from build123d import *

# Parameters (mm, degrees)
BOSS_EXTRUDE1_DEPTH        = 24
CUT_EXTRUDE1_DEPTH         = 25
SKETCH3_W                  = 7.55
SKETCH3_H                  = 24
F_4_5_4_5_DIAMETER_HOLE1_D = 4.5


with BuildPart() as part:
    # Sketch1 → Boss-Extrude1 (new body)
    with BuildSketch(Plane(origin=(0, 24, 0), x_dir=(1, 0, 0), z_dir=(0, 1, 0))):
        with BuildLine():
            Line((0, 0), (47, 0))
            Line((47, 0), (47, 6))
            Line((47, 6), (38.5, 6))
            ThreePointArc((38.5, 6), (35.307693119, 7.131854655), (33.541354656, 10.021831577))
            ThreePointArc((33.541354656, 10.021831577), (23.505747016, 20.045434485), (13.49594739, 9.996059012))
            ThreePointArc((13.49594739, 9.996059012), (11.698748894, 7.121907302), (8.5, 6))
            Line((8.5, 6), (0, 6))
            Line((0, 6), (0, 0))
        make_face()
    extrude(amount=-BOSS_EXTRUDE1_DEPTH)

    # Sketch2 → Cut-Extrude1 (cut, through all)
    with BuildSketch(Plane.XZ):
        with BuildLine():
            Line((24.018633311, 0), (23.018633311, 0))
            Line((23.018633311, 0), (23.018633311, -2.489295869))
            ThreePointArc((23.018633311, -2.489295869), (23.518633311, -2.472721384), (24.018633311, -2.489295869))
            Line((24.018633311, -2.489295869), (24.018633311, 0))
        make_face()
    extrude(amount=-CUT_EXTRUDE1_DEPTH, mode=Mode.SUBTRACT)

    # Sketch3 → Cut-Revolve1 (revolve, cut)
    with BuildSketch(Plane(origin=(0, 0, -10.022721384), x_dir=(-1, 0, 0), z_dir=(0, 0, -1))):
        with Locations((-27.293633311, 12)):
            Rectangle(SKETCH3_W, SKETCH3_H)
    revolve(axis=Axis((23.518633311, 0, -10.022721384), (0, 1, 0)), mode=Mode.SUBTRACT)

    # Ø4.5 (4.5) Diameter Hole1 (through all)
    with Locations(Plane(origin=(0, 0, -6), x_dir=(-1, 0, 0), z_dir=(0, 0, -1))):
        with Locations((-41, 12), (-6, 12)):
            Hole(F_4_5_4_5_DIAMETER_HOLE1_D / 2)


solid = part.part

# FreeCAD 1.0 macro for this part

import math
import FreeCAD as App
import Part
import Sketcher

V = App.Vector


def add_polygon(sketch, points):
    """Adds a closed chain of lines whose ends are joined by coincident constraints."""
    first, n = sketch.GeometryCount, len(points)
    for a, b in zip(points, points[1:] + points[:1]):
        sketch.addGeometry(Part.LineSegment(App.Vector(*a, 0), App.Vector(*b, 0)), False)
    for i in range(n):
        sketch.addConstraint(Sketcher.Constraint("Coincident", first + i, 2, first + (i + 1) % n, 1))

doc = App.newDocument("Part")
body = doc.addObject("PartDesign::Body", "Body")

# Sketch on XZ plane
sketch1 = body.newObject("Sketcher::SketchObject", "Sketch")
sketch1.AttachmentSupport = (doc.getObject("XZ_Plane"), [""])
sketch1.MapMode = "FlatFace"
sketch1.AttachmentOffset = App.Placement(V(0, 0, -24), App.Rotation())
sketch1.addGeometry([
    Part.LineSegment(V(0, 0, 0), V(47, 0, 0)),  # 0
    Part.LineSegment(V(47, 0, 0), V(47, -6, 0)),  # 1
    Part.LineSegment(V(47, -6, 0), V(38, -6, 0)),  # 2
    Part.ArcOfCircle(Part.Circle(V(38, -11, 0), V(0, 0, 1), 5), math.radians(90), math.radians(168)),  # 3
    Part.ArcOfCircle(Part.Circle(V(24, -10, 0), V(0, 0, 1), 10), math.radians(180), math.radians(360)),  # 4
    Part.ArcOfCircle(Part.Circle(V(9, -11, 0), V(0, 0, 1), 5), math.radians(13), math.radians(90)),  # 5
    Part.LineSegment(V(8, -6, 0), V(0, -6, 0)),  # 6
    Part.LineSegment(V(0, -6, 0), V(0, 0, 0)),  # 7
], False)
sketch1.addConstraint([
    Sketcher.Constraint("Coincident", 0, 2, 1, 1),
    Sketcher.Constraint("Coincident", 1, 2, 2, 1),
    Sketcher.Constraint("Tangent", 2, 2, 3, 1),
    Sketcher.Constraint("Coincident", 3, 2, 4, 2),
    Sketcher.Constraint("Coincident", 4, 1, 5, 1),
    Sketcher.Constraint("Tangent", 5, 2, 6, 1),
    Sketcher.Constraint("Coincident", 6, 2, 7, 1),
    Sketcher.Constraint("Coincident", 7, 2, 0, 1),
    Sketcher.Constraint("Horizontal", 0),
    Sketcher.Constraint("Vertical", 1),
    Sketcher.Constraint("Horizontal", 2),
    Sketcher.Constraint("Horizontal", 6),
    Sketcher.Constraint("Vertical", 7),
    Sketcher.Constraint("Coincident", 7, 2, -1, 1),
    Sketcher.Constraint("Horizontal", 2, 2, 5, 2),
    Sketcher.Constraint("Equal", 2, 6),
    Sketcher.Constraint("DistanceX", 0, 1, 0, 2, 47.0),
    Sketcher.Constraint("DistanceY", 1, 2, 1, 1, 6.0),
    Sketcher.Constraint("DistanceX", 2, 2, 2, 1, 8.5),
    Sketcher.Constraint("Radius", 4, 10.022721),
    Sketcher.Constraint("Radius", 3, 5.067752),
    Sketcher.Constraint("Radius", 5, 5.121043),
    Sketcher.Constraint("DistanceY", 4, 3, -1, 1, 10.022721),
    Sketcher.Constraint("DistanceY", 3, 2, -1, 1, 10.021832),
])
pad1 = body.newObject("PartDesign::Pad", "Pad")
pad1.Profile = sketch1
pad1.Length = 24

# Sketch on XZ plane
sketch2 = body.newObject("Sketcher::SketchObject", "Sketch001")
sketch2.AttachmentSupport = (doc.getObject("XZ_Plane"), [""])
sketch2.MapMode = "FlatFace"
sketch2.addGeometry([
    Part.LineSegment(V(24, 0, 0), V(23, 0, 0)),
    Part.LineSegment(V(23, 0, 0), V(23, -2.5, 0)),
    Part.ArcOfCircle(Part.Circle(V(23.5, -10, 0), V(0, 0, 1), 7.5), math.radians(86.2), math.radians(93.8)),
    Part.LineSegment(V(24, -2.5, 0), V(24, 0, 0)),
], False)
sketch2.addConstraint([
    Sketcher.Constraint("Coincident", 0, 2, 1, 1),
    Sketcher.Constraint("Coincident", 1, 2, 2, 2),
    Sketcher.Constraint("Coincident", 2, 1, 3, 1),
    Sketcher.Constraint("Coincident", 3, 2, 0, 1),
    Sketcher.Constraint("Horizontal", 0),
    Sketcher.Constraint("Vertical", 1),
    Sketcher.Constraint("Vertical", 3),
    Sketcher.Constraint("PointOnObject", 0, 2, -1),
    Sketcher.Constraint("Horizontal", 1, 2, 2, 1),
    Sketcher.Constraint("DistanceX", 0, 2, 0, 1, 1.0),
    Sketcher.Constraint("Radius", 2, 7.55),
    Sketcher.Constraint("DistanceY", 1, 2, 1, 1, 2.489296),
    Sketcher.Constraint("DistanceX", -1, 1, 2, 3, 23.518633),
])
pocket1 = body.newObject("PartDesign::Pocket", "Pocket")
pocket1.Profile = sketch2
pocket1.Type = "ThroughAll"

# Sketch on XY plane
sketch3 = body.newObject("Sketcher::SketchObject", "Sketch002")
sketch3.AttachmentSupport = (doc.getObject("XY_Plane"), [""])
sketch3.MapMode = "FlatFace"
sketch3.AttachmentOffset = App.Placement(V(0, 0, -10.022721), App.Rotation())
add_polygon(sketch3, [(31, 24), (31, 0), (24, 0), (24, 24)])  # lines 0-3
sketch3.addGeometry(Part.LineSegment(V(24, 0, 0), V(24, 24, 0)), True)  # axis
sketch3.addConstraint([
    Sketcher.Constraint("Vertical", 0),
    Sketcher.Constraint("Horizontal", 1),
    Sketcher.Constraint("Vertical", 2),
    Sketcher.Constraint("Horizontal", 3),
    Sketcher.Constraint("Vertical", 4),
    Sketcher.Constraint("Coincident", 4, 1, 1, 2),
    Sketcher.Constraint("PointOnObject", 0, 2, -1),
    Sketcher.Constraint("Horizontal", 3, 2, 4, 2),
    Sketcher.Constraint("DistanceY", 0, 2, 0, 1, 24.0),
    Sketcher.Constraint("DistanceX", 1, 2, 1, 1, 7.55),
    Sketcher.Constraint("DistanceX", -1, 1, 0, 2, 31.068633),
])
groove = body.newObject("PartDesign::Groove", "Groove")
groove.Profile = sketch3
groove.ReferenceAxis = (sketch3, ["Axis0"])
groove.Angle = 360

# Sketch on XY plane
sketch4 = body.newObject("Sketcher::SketchObject", "Sketch003")
sketch4.AttachmentSupport = (doc.getObject("XY_Plane"), [""])
sketch4.MapMode = "FlatFace"
sketch4.AttachmentOffset = App.Placement(V(0, 0, -6), App.Rotation())
sketch4.addGeometry([
    Part.Circle(V(41, 12, 0), V(0, 0, 1), 2.2),
    Part.Circle(V(6, 12, 0), V(0, 0, 1), 2.2),
], False)
sketch4.addConstraint([
    Sketcher.Constraint("Equal", 0, 1),
    Sketcher.Constraint("Horizontal", 0, 3, 1, 3),
    Sketcher.Constraint("Diameter", 0, 4.5),
    Sketcher.Constraint("DistanceX", -1, 1, 0, 3, 41.0),
    Sketcher.Constraint("DistanceY", -1, 1, 0, 3, 12.0),
    Sketcher.Constraint("DistanceX", -1, 1, 1, 3, 6.0),
])
doc.recompute()
hole = body.newObject("PartDesign::Hole", "Hole")
hole.Profile = sketch4
hole.ThreadType = "None"
hole.Diameter = 4.5
hole.DepthType = "ThroughAll"
hole.Reversed = True

doc.recompute()
